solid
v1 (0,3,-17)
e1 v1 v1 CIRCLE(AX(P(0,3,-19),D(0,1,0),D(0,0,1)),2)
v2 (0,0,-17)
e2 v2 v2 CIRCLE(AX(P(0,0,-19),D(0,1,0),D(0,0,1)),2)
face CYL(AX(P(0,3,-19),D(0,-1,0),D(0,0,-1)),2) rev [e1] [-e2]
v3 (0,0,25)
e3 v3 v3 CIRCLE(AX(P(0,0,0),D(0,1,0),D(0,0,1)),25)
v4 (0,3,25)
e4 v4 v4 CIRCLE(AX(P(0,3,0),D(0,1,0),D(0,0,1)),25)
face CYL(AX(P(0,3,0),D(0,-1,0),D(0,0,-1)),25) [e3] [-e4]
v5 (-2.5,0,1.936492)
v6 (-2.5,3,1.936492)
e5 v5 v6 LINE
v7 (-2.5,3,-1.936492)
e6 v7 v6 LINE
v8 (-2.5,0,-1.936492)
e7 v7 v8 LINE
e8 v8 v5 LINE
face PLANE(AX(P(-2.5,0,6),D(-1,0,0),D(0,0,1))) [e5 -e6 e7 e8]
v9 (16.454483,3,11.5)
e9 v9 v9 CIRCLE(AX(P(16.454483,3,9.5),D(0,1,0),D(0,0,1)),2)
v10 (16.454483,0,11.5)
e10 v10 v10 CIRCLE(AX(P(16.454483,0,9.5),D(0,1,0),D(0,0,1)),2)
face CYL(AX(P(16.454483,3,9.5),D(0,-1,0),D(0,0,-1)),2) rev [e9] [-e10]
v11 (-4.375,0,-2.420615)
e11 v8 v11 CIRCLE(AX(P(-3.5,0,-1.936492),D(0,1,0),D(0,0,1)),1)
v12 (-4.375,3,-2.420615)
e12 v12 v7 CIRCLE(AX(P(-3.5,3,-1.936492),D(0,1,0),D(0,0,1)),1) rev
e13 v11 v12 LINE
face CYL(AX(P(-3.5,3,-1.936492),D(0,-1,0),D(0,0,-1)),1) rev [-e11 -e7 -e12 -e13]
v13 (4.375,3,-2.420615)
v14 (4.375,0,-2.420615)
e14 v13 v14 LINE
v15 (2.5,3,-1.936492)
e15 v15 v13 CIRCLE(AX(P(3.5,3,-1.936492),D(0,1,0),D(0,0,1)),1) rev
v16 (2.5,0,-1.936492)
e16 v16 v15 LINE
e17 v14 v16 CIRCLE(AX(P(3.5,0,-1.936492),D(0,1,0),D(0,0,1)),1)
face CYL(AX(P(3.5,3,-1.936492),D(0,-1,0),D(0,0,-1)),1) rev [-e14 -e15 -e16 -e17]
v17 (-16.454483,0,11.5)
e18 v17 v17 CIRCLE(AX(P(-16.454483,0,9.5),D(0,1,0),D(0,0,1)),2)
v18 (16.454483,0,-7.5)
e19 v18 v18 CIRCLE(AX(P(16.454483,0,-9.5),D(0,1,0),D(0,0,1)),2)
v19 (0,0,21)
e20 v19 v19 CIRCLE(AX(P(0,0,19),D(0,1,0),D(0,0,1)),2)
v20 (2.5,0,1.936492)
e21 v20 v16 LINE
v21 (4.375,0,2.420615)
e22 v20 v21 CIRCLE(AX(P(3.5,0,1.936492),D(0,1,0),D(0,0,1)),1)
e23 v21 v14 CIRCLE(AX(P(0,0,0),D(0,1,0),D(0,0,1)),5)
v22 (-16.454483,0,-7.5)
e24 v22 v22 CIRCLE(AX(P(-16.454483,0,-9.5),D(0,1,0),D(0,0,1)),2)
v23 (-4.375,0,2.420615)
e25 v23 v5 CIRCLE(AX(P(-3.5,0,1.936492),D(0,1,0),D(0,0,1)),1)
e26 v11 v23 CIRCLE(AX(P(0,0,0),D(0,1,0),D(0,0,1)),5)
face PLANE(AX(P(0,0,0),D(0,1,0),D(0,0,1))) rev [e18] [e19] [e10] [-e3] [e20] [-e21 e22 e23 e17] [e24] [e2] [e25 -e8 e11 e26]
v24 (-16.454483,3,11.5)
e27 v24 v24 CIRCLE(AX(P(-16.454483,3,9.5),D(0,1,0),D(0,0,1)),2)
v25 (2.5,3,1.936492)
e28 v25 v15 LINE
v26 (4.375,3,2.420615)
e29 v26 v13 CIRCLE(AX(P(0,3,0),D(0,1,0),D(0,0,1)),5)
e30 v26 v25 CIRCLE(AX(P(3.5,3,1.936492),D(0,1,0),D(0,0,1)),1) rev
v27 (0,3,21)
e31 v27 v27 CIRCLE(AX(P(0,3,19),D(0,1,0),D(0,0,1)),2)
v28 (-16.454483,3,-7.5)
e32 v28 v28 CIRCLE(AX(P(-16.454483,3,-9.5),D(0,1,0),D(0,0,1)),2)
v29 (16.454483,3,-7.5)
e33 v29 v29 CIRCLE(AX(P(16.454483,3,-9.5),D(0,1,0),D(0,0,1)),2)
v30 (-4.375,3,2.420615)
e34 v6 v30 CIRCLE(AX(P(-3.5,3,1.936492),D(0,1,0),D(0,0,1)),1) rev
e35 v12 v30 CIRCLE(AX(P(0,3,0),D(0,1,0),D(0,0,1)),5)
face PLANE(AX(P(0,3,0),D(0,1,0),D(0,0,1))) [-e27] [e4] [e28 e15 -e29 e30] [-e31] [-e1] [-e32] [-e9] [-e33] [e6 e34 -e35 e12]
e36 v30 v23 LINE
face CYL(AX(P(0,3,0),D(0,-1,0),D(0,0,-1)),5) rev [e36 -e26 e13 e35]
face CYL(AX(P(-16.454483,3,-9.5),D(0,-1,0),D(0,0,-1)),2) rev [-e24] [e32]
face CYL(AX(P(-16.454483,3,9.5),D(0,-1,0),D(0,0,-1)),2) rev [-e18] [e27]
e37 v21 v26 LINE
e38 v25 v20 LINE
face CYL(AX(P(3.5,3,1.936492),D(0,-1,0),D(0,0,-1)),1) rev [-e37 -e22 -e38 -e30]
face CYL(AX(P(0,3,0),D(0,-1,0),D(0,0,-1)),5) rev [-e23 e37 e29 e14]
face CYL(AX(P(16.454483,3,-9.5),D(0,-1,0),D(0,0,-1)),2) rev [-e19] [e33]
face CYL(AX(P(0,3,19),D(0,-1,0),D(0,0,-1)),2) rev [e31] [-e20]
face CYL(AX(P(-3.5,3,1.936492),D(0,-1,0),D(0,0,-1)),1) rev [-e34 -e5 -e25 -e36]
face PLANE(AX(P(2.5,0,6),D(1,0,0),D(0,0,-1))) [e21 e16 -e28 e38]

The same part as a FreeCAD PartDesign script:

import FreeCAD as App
import Part
import Sketcher
from FreeCAD import Vector


def edges_at(feature, points):
    """Names of the edges that pass closest to the given points."""
    edges = feature.Shape.Edges
    near = lambda p: min(range(len(edges)), key=lambda i: edges[i].distToShape(Part.Vertex(*p))[0])
    return sorted({f"Edge{near(p) + 1}" for p in points})

doc = App.newDocument("Part")
body = doc.addObject("PartDesign::Body", "Body")

# Sketch on XZ plane
sketch1 = body.newObject("Sketcher::SketchObject", "Sketch")
sketch1.AttachmentSupport = (doc.getObject("XZ_Plane"), [""])
sketch1.MapMode = "FlatFace"
sketch1.addGeometry(Part.Circle(Vector(0, 0, 0), Vector(0, 0, 1), 25), False)
sketch1.addGeometry(Part.Circle(Vector(-16.5, -9.5, 0), Vector(0, 0, 1), 2), False)
sketch1.addGeometry(Part.Circle(Vector(0, -19, 0), Vector(0, 0, 1), 2), False)
sketch1.addGeometry(Part.Circle(Vector(-16.5, 9.5, 0), Vector(0, 0, 1), 2), False)
sketch1.addGeometry(Part.Circle(Vector(16.5, -9.5, 0), Vector(0, 0, 1), 2), False)
sketch1.addGeometry(Part.Circle(Vector(0, 0, 0), Vector(0, 0, 1), 5), False)
sketch1.addGeometry(Part.Circle(Vector(0, 19, 0), Vector(0, 0, 1), 2), False)
sketch1.addGeometry(Part.Circle(Vector(16.5, 9.5, 0), Vector(0, 0, 1), 2), False)
sketch1.addConstraint(Sketcher.Constraint("Coincident", 0, 3, -1, 1))
sketch1.addConstraint(Sketcher.Constraint("Coincident", 5, 3, -1, 1))
sketch1.addConstraint(Sketcher.Constraint("Equal", 1, 2))
sketch1.addConstraint(Sketcher.Constraint("Equal", 2, 3))
sketch1.addConstraint(Sketcher.Constraint("Equal", 3, 4))
sketch1.addConstraint(Sketcher.Constraint("Equal", 4, 6))
sketch1.addConstraint(Sketcher.Constraint("Equal", 6, 7))
sketch1.addConstraint(Sketcher.Constraint("Symmetric", 3, 3, 4, 3, -1, 1))
sketch1.addConstraint(Sketcher.Constraint("Symmetric", 2, 3, 6, 3, -1, 1))
sketch1.addConstraint(Sketcher.Constraint("Symmetric", 1, 3, 7, 3, -1, 1))
sketch1.addConstraint(Sketcher.Constraint("Symmetric", 1, 3, 4, 3, -2))
sketch1.addConstraint(Sketcher.Constraint("PointOnObject", 2, 3, -2))
sketch1.addConstraint(Sketcher.Constraint("Diameter", 0, 50.0))
sketch1.addConstraint(Sketcher.Constraint("Diameter", 1, 4.0))
sketch1.addConstraint(Sketcher.Constraint("Diameter", 5, 10.0))
sketch1.addConstraint(Sketcher.Constraint("DistanceY", 2, 3, -1, 1, 19.0))
sketch1.addConstraint(Sketcher.Constraint("DistanceY", 1, 3, 3, 3, 19.0))
sketch1.addConstraint(Sketcher.Constraint("DistanceX", 1, 3, -1, 1, 16.454483))
pad1 = body.newObject("PartDesign::Pad", "Pad")
pad1.Profile = sketch1
pad1.Length = 3
pad1.Reversed = True

# Sketch on XZ plane
sketch2 = body.newObject("Sketcher::SketchObject", "Sketch001")
sketch2.AttachmentSupport = (doc.getObject("XZ_Plane"), [""])
sketch2.MapMode = "FlatFace"
sketch2.AttachmentOffset = App.Placement(Vector(0, 0, -3), App.Rotation())
sketch2.addGeometry(Part.LineSegment(Vector(-2, -6, 0), Vector(-2, 6, 0)), False)
sketch2.addGeometry(Part.LineSegment(Vector(-2, 6, 0), Vector(2, 6, 0)), False)
sketch2.addGeometry(Part.LineSegment(Vector(2, 6, 0), Vector(2, -6, 0)), False)
sketch2.addGeometry(Part.LineSegment(Vector(2, -6, 0), Vector(-2, -6, 0)), False)
sketch2.addConstraint(Sketcher.Constraint("Coincident", 0, 2, 1, 1))
sketch2.addConstraint(Sketcher.Constraint("Coincident", 1, 2, 2, 1))
sketch2.addConstraint(Sketcher.Constraint("Coincident", 2, 2, 3, 1))
sketch2.addConstraint(Sketcher.Constraint("Coincident", 3, 2, 0, 1))
sketch2.addConstraint(Sketcher.Constraint("Vertical", 0))
sketch2.addConstraint(Sketcher.Constraint("Horizontal", 1))
sketch2.addConstraint(Sketcher.Constraint("Vertical", 2))
sketch2.addConstraint(Sketcher.Constraint("Horizontal", 3))
sketch2.addConstraint(Sketcher.Constraint("Symmetric", 0, 2, 2, 2, -1, 1))
sketch2.addConstraint(Sketcher.Constraint("DistanceX", 1, 1, 1, 2, 5.0))
sketch2.addConstraint(Sketcher.Constraint("DistanceY", 0, 1, 0, 2, 12.0))
pad2 = body.newObject("PartDesign::Pad", "Pad001")
pad2.Profile = sketch2
pad2.Length = 3
doc.recompute()

fillet = body.newObject("PartDesign::Fillet", "Fillet")
fillet.Base = (pad2, edges_at(pad2, [
    (-2.5, 1.5, 4.33),
    (-2.5, 1.5, -4.33),
    (2.5, 1.5, -4.33),
    (2.5, 1.5, 4.33),
]))
fillet.Radius = 1

doc.recompute()
